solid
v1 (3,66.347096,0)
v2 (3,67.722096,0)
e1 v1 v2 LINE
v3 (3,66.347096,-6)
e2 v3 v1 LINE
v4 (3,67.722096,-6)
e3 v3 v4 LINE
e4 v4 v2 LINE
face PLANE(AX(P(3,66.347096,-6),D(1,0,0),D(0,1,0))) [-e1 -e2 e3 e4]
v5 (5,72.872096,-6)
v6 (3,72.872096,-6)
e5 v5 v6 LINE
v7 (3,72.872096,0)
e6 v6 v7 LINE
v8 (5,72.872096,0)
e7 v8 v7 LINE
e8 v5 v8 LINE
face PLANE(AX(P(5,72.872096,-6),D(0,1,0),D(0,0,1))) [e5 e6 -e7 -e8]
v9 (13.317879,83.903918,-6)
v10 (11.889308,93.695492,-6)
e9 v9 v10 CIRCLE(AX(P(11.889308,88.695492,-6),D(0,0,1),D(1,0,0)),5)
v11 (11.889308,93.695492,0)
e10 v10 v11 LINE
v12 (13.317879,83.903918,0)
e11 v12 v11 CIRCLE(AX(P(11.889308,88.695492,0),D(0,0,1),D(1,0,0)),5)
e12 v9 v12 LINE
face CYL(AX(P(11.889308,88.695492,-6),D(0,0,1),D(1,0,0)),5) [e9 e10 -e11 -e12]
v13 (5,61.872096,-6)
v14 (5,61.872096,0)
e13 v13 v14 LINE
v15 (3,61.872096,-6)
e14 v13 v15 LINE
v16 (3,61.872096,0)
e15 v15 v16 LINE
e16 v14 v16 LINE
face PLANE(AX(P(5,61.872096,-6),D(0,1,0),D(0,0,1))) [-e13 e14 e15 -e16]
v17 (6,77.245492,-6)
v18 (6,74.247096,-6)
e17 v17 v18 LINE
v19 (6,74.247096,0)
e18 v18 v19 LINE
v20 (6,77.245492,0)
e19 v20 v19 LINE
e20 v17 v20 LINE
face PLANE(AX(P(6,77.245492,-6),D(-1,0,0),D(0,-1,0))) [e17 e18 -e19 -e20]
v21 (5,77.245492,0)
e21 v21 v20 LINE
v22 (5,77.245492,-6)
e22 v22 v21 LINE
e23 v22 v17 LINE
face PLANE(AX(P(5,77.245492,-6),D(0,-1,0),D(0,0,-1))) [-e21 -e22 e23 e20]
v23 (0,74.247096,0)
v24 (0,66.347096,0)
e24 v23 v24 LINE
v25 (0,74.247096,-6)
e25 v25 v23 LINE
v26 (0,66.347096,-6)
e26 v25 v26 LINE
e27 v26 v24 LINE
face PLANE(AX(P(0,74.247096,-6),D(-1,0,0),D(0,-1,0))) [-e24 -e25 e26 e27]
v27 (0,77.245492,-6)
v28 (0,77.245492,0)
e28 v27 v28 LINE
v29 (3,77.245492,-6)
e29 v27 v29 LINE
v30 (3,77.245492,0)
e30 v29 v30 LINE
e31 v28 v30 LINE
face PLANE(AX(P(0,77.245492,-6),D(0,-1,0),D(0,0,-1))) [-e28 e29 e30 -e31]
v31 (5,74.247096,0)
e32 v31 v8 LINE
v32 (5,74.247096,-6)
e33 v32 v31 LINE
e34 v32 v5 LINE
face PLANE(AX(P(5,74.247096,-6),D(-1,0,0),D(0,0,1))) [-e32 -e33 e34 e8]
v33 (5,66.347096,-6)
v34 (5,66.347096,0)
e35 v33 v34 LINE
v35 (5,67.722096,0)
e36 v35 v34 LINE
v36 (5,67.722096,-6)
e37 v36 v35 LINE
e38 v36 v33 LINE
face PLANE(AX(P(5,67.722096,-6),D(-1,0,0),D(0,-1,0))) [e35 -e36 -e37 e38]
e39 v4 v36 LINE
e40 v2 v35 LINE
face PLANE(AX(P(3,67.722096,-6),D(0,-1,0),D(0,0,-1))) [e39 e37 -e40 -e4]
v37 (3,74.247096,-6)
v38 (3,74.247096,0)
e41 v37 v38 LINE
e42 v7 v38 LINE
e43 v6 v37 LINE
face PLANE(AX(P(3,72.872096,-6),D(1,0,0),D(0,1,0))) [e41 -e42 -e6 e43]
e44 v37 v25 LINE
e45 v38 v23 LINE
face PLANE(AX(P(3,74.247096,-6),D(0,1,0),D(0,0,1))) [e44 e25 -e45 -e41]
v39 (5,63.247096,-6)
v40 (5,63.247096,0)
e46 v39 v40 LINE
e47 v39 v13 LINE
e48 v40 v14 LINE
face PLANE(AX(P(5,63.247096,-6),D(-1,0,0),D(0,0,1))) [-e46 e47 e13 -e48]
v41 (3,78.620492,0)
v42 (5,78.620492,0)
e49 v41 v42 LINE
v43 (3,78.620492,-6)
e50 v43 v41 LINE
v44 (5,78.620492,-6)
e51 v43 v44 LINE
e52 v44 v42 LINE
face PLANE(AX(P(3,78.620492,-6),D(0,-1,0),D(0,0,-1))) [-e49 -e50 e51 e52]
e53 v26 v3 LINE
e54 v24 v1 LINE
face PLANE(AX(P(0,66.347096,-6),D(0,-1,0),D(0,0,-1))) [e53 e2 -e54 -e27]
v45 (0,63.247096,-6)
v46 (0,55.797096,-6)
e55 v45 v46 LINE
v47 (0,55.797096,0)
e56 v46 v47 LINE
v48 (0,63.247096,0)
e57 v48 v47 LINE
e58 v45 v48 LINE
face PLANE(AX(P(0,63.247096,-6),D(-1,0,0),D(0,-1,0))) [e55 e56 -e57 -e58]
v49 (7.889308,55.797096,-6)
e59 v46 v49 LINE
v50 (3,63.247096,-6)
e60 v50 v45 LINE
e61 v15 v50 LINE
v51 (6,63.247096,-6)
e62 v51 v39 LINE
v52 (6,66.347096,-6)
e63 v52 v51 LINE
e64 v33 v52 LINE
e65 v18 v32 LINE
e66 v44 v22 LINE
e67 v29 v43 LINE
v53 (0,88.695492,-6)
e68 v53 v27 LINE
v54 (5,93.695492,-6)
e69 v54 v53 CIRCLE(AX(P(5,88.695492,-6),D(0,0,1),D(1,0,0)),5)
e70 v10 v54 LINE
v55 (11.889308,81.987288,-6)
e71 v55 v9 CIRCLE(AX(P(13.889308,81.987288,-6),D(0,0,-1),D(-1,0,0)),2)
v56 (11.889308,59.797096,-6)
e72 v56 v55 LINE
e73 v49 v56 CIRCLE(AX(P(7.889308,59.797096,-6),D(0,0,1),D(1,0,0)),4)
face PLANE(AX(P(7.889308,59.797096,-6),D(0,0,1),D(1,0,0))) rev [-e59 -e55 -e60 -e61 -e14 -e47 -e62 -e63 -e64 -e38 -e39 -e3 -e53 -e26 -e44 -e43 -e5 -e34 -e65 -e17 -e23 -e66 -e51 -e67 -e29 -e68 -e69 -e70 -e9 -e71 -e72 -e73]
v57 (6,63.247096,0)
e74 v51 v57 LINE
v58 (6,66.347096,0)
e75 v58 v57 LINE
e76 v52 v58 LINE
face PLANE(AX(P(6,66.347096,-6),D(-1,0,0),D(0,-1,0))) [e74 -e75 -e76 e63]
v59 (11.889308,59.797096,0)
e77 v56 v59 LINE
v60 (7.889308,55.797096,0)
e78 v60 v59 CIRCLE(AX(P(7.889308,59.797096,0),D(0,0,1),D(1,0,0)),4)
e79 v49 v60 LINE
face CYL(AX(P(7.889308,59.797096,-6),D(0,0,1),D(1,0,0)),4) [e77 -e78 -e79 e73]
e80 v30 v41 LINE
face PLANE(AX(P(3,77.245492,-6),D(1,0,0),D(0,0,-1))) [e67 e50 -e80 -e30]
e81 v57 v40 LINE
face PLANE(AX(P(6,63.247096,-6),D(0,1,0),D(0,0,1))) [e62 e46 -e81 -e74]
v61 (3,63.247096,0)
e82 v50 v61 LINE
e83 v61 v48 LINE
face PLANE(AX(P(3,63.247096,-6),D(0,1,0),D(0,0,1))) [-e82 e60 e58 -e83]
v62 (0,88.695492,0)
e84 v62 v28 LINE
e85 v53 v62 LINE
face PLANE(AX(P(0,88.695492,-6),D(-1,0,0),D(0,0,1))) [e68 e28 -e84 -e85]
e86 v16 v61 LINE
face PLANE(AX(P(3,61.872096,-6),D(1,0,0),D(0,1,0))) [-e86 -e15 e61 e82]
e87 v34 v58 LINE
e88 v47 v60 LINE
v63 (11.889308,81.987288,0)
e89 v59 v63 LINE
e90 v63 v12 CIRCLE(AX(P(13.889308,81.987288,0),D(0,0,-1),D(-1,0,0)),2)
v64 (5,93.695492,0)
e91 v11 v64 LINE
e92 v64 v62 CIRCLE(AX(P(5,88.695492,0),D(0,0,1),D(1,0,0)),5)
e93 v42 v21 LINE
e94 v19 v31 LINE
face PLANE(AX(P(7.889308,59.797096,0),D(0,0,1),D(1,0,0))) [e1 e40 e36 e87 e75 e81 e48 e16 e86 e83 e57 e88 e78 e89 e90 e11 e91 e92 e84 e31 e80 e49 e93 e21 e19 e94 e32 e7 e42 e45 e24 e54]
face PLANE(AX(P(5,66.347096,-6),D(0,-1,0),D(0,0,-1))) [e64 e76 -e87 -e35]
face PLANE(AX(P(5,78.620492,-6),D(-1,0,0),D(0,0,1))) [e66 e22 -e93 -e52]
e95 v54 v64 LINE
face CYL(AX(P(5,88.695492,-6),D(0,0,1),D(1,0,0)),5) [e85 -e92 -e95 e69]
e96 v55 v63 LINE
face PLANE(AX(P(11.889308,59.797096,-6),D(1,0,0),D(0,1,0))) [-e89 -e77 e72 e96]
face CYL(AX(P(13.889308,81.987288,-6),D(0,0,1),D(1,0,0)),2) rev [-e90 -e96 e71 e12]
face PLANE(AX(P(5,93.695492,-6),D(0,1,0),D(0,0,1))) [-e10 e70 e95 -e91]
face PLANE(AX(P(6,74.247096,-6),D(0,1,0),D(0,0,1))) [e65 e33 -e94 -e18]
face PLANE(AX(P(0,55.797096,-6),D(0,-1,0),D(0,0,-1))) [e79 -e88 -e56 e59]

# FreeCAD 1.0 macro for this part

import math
import FreeCAD as App
import Part
import Sketcher
from FreeCAD import Vector

doc = App.newDocument("Part")
params = doc.addObject("Spreadsheet::Sheet", "Params")
for row, (alias, value) in enumerate([
    ("sketch1_radius", "5 mm"),
    ("sketch1_radius2", "4 mm"),
    ("sketch1_radius3", "2 mm"),
    ("sketch1_width", "3 mm"),
    ("sketch1_width2", "1 mm"),
    ("pad1_length", "6 mm"),
], start=1):
    params.set(f"A{row}", alias)
    params.set(f"B{row}", "=" + value)
    params.setAlias(f"B{row}", alias)

body = doc.addObject("PartDesign::Body", "Body")

# Sketch on XY plane
sketch1 = body.newObject("Sketcher::SketchObject", "Sketch")
sketch1.AttachmentSupport = (doc.getObject("XY_Plane"), [""])
sketch1.MapMode = "FlatFace"
sketch1.addGeometry([
    Part.LineSegment(Vector(11.889308, 93.695492, 0), Vector(5, 93.695492, 0)),  # 0
    Part.ArcOfCircle(Part.Circle(Vector(5, 88.695492, 0), Vector(0, 0, 1), 5), math.radians(90), math.radians(180)),  # 1
    Part.LineSegment(Vector(0, 88.695492, 0), Vector(0, 77.245492, 0)),  # 2
    Part.LineSegment(Vector(0, 77.245492, 0), Vector(3, 77.245492, 0)),  # 3
    Part.LineSegment(Vector(3, 77.245492, 0), Vector(3, 78.620492, 0)),  # 4
    Part.LineSegment(Vector(3, 78.620492, 0), Vector(5, 78.620492, 0)),  # 5
    Part.LineSegment(Vector(5, 78.620492, 0), Vector(5, 77.245492, 0)),  # 6
    Part.LineSegment(Vector(5, 77.245492, 0), Vector(6, 77.245492, 0)),  # 7
    Part.LineSegment(Vector(6, 77.245492, 0), Vector(6, 74.247096, 0)),  # 8
    Part.LineSegment(Vector(6, 74.247096, 0), Vector(5, 74.247096, 0)),  # 9
    Part.LineSegment(Vector(5, 74.247096, 0), Vector(5, 72.872096, 0)),  # 10
    Part.LineSegment(Vector(5, 72.872096, 0), Vector(3, 72.872096, 0)),  # 11
    Part.LineSegment(Vector(3, 72.872096, 0), Vector(3, 74.247096, 0)),  # 12
    Part.LineSegment(Vector(3, 74.247096, 0), Vector(0, 74.247096, 0)),  # 13
    Part.LineSegment(Vector(0, 74.247096, 0), Vector(0, 66.347096, 0)),  # 14
    Part.LineSegment(Vector(0, 66.347096, 0), Vector(3, 66.347096, 0)),  # 15
    Part.LineSegment(Vector(3, 66.347096, 0), Vector(3, 67.722096, 0)),  # 16
    Part.LineSegment(Vector(3, 67.722096, 0), Vector(5, 67.722096, 0)),  # 17
    Part.LineSegment(Vector(5, 67.722096, 0), Vector(5, 66.347096, 0)),  # 18
    Part.LineSegment(Vector(5, 66.347096, 0), Vector(6, 66.347096, 0)),  # 19
    Part.LineSegment(Vector(6, 66.347096, 0), Vector(6, 63.247096, 0)),  # 20
    Part.LineSegment(Vector(6, 63.247096, 0), Vector(5, 63.247096, 0)),  # 21
    Part.LineSegment(Vector(5, 63.247096, 0), Vector(5, 61.872096, 0)),  # 22
    Part.LineSegment(Vector(5, 61.872096, 0), Vector(3, 61.872096, 0)),  # 23
    Part.LineSegment(Vector(3, 61.872096, 0), Vector(3, 63.247096, 0)),  # 24
    Part.LineSegment(Vector(3, 63.247096, 0), Vector(0, 63.247096, 0)),  # 25
    Part.LineSegment(Vector(0, 63.247096, 0), Vector(0, 55.797096, 0)),  # 26
    Part.LineSegment(Vector(0, 55.797096, 0), Vector(7.889308, 55.797096, 0)),  # 27
    Part.ArcOfCircle(Part.Circle(Vector(7.889308, 59.797096, 0), Vector(0, 0, 1), 4), math.radians(-90), math.radians(0)),  # 28
    Part.LineSegment(Vector(11.889308, 59.797096, 0), Vector(11.889308, 81.987288, 0)),  # 29
    Part.ArcOfCircle(Part.Circle(Vector(13.889308, 81.987288, 0), Vector(0, 0, 1), 2), math.radians(106.60155), math.radians(180)),  # 30
    Part.ArcOfCircle(Part.Circle(Vector(11.889308, 88.695492, 0), Vector(0, 0, 1), 5), math.radians(-73.39845), math.radians(90)),  # 31
], False)
sketch1.addConstraint([
    Sketcher.Constraint("Tangent", 0, 2, 1, 1),
    Sketcher.Constraint("Tangent", 1, 2, 2, 1),
    Sketcher.Constraint("Coincident", 2, 2, 3, 1),
    Sketcher.Constraint("Coincident", 3, 2, 4, 1),
    Sketcher.Constraint("Coincident", 4, 2, 5, 1),
    Sketcher.Constraint("Coincident", 5, 2, 6, 1),
    Sketcher.Constraint("Coincident", 6, 2, 7, 1),
    Sketcher.Constraint("Coincident", 7, 2, 8, 1),
    Sketcher.Constraint("Coincident", 8, 2, 9, 1),
    Sketcher.Constraint("Coincident", 9, 2, 10, 1),
    Sketcher.Constraint("Coincident", 10, 2, 11, 1),
    Sketcher.Constraint("Coincident", 11, 2, 12, 1),
    Sketcher.Constraint("Coincident", 12, 2, 13, 1),
    Sketcher.Constraint("Coincident", 13, 2, 14, 1),
    Sketcher.Constraint("Coincident", 14, 2, 15, 1),
    Sketcher.Constraint("Coincident", 15, 2, 16, 1),
    Sketcher.Constraint("Coincident", 16, 2, 17, 1),
    Sketcher.Constraint("Coincident", 17, 2, 18, 1),
    Sketcher.Constraint("Coincident", 18, 2, 19, 1),
    Sketcher.Constraint("Coincident", 19, 2, 20, 1),
    Sketcher.Constraint("Coincident", 20, 2, 21, 1),
    Sketcher.Constraint("Coincident", 21, 2, 22, 1),
    Sketcher.Constraint("Coincident", 22, 2, 23, 1),
    Sketcher.Constraint("Coincident", 23, 2, 24, 1),
    Sketcher.Constraint("Coincident", 24, 2, 25, 1),
    Sketcher.Constraint("Coincident", 25, 2, 26, 1),
    Sketcher.Constraint("Coincident", 26, 2, 27, 1),
    Sketcher.Constraint("Tangent", 27, 2, 28, 1),
    Sketcher.Constraint("Tangent", 28, 2, 29, 1),
    Sketcher.Constraint("Tangent", 29, 2, 30, 2),
    Sketcher.Constraint("Tangent", 30, 1, 31, 1),
    Sketcher.Constraint("Tangent", 31, 2, 0, 1),
    Sketcher.Constraint("Horizontal", 0),
    Sketcher.Constraint("Vertical", 2),
    Sketcher.Constraint("Horizontal", 3),
    Sketcher.Constraint("Vertical", 4),
    Sketcher.Constraint("Horizontal", 5),
    Sketcher.Constraint("Vertical", 6),
    Sketcher.Constraint("Horizontal", 7),
    Sketcher.Constraint("Vertical", 8),
    Sketcher.Constraint("Horizontal", 9),
    Sketcher.Constraint("Vertical", 10),
    Sketcher.Constraint("Horizontal", 11),
    Sketcher.Constraint("Vertical", 12),
    Sketcher.Constraint("Horizontal", 13),
    Sketcher.Constraint("Vertical", 14),
    Sketcher.Constraint("Horizontal", 15),
    Sketcher.Constraint("Vertical", 16),
    Sketcher.Constraint("Horizontal", 17),
    Sketcher.Constraint("Vertical", 18),
    Sketcher.Constraint("Horizontal", 19),
    Sketcher.Constraint("Vertical", 20),
    Sketcher.Constraint("Horizontal", 21),
    Sketcher.Constraint("Vertical", 22),
    Sketcher.Constraint("Horizontal", 23),
    Sketcher.Constraint("Vertical", 24),
    Sketcher.Constraint("Horizontal", 25),
    Sketcher.Constraint("Vertical", 26),
    Sketcher.Constraint("Horizontal", 27),
    Sketcher.Constraint("Vertical", 29),
    Sketcher.Constraint("Equal", 1, 31),
    Sketcher.Constraint("PointOnObject", 1, 2, -2),
    Sketcher.Constraint("PointOnObject", 13, 2, -2),
    Sketcher.Constraint("PointOnObject", 25, 2, -2),
    Sketcher.Constraint("Horizontal", 3, 2, 6, 2),
    Sketcher.Constraint("Horizontal", 9, 2, 12, 2),
    Sketcher.Constraint("Horizontal", 15, 2, 18, 2),
    Sketcher.Constraint("Horizontal", 21, 2, 24, 2),
    Sketcher.Constraint("Vertical", 0, 2, 5, 2),
    Sketcher.Constraint("Vertical", 6, 2, 9, 2),
    Sketcher.Constraint("Vertical", 4, 2, 11, 2),
    Sketcher.Constraint("Vertical", 12, 2, 15, 2),
    Sketcher.Constraint("Vertical", 10, 2, 17, 2),
    Sketcher.Constraint("Vertical", 8, 2, 19, 2),
    Sketcher.Constraint("Vertical", 18, 2, 21, 2),
    Sketcher.Constraint("Vertical", 16, 2, 23, 2),
    Sketcher.Constraint("Vertical", 31, 3, 28, 2),
    Sketcher.Constraint("Equal", 6, 10),
    Sketcher.Constraint("Equal", 12, 16),
    Sketcher.Constraint("Equal", 18, 22),
    Sketcher.Constraint("Radius", 1, 5.0),
    Sketcher.Constraint("Radius", 28, 4.0),
    Sketcher.Constraint("Radius", 30, 2.0),
    Sketcher.Constraint("DistanceX", 3, 1, 3, 2, 3.0),
    Sketcher.Constraint("DistanceX", 7, 1, 7, 2, 1.0),
    Sketcher.Constraint("DistanceY", 14, 2, 14, 1, 7.9),
    Sketcher.Constraint("DistanceY", 20, 2, 20, 1, 3.1),
    Sketcher.Constraint("DistanceY", 2, 2, 2, 1, 11.45),
    Sketcher.Constraint("DistanceY", 26, 2, 26, 1, 7.45),
    Sketcher.Constraint("DistanceY", 4, 1, 4, 2, 1.375),
    Sketcher.Constraint("DistanceX", 0, 2, 0, 1, 6.889308),
    Sketcher.Constraint("DistanceY", 8, 2, 8, 1, 2.998397),
    Sketcher.Constraint("DistanceY", -1, 1, 30, 3, 81.987288),
])
sketch1.setExpression("Constraints[80]", "Params.sketch1_radius")
sketch1.setExpression("Constraints[81]", "Params.sketch1_radius2")
sketch1.setExpression("Constraints[82]", "Params.sketch1_radius3")
sketch1.setExpression("Constraints[83]", "Params.sketch1_width")
sketch1.setExpression("Constraints[84]", "Params.sketch1_width2")
pad1 = body.newObject("PartDesign::Pad", "Pad")
pad1.Profile = sketch1
pad1.setExpression("Length", "Params.pad1_length")
pad1.Reversed = True

doc.recompute()
